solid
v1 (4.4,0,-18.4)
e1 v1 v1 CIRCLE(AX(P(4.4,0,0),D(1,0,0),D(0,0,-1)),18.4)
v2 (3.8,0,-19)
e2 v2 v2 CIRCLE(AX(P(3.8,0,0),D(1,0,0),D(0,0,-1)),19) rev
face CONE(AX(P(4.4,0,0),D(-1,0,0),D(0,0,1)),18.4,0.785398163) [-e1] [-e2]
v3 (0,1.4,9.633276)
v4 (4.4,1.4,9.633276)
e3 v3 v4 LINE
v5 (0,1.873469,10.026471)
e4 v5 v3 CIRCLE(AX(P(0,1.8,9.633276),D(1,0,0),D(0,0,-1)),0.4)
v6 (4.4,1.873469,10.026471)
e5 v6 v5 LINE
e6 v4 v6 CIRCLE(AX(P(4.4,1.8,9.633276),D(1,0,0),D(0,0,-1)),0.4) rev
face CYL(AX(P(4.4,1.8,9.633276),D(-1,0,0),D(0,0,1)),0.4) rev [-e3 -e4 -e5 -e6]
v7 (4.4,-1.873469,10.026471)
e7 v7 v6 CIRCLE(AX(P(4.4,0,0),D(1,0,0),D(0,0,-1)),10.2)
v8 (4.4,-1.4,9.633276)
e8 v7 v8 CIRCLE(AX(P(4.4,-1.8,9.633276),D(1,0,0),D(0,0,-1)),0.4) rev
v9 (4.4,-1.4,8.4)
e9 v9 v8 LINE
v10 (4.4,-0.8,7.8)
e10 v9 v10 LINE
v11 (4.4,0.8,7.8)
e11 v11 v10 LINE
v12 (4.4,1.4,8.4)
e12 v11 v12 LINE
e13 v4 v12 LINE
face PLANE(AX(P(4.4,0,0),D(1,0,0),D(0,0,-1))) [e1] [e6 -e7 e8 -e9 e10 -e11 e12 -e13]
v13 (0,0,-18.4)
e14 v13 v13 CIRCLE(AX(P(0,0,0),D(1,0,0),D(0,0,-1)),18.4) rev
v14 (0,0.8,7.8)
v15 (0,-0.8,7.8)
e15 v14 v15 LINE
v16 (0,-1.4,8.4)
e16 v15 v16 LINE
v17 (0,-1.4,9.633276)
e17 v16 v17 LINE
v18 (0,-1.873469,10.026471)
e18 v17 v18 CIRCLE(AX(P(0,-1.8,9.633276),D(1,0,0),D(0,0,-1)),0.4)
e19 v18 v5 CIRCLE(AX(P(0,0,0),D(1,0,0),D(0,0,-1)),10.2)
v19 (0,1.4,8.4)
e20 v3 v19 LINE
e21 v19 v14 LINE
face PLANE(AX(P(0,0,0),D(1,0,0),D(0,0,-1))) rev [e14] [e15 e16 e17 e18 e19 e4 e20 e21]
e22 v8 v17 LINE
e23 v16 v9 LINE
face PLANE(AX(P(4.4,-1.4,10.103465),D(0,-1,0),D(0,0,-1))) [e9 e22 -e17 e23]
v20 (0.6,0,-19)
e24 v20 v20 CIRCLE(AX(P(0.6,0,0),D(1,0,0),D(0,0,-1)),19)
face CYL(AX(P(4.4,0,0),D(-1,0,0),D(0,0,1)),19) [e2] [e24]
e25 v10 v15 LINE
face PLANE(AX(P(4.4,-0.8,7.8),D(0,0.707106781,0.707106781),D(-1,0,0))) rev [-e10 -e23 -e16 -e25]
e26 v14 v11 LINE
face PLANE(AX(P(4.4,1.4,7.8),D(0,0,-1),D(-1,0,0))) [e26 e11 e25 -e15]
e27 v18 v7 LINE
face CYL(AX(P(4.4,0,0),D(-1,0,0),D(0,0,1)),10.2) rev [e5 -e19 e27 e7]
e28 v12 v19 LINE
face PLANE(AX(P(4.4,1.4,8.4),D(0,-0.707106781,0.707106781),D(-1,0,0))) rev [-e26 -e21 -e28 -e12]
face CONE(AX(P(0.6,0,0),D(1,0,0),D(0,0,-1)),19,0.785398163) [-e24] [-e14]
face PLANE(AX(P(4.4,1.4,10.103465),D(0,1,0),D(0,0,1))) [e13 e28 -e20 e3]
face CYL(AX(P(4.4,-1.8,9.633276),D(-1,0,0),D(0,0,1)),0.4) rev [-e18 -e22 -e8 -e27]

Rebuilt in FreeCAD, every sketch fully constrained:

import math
import FreeCAD as App
import Part
import Sketcher

V = App.Vector
Q = App.Units.Quantity


def edges_at(feature, points):
    """Names of the edges that pass closest to the given points."""
    edges = feature.Shape.Edges
    near = lambda p: min(range(len(edges)), key=lambda i: edges[i].distToShape(Part.Vertex(*p))[0])
    return sorted({f"Edge{near(p) + 1}" for p in points})

doc = App.newDocument("Part")
body = doc.addObject("PartDesign::Body", "Body")

# Sketch on YZ plane
sketch1 = body.newObject("Sketcher::SketchObject", "Sketch")
sketch1.AttachmentSupport = (doc.getObject("YZ_Plane"), [""])
sketch1.MapMode = "FlatFace"
sketch1.addGeometry(Part.Circle(V(0, 0, 0), V(0, 0, 1), 19), False)
sketch1.addGeometry(Part.LineSegment(V(1.4, 7.8, 0), V(1.4, 10.1, 0)), False)
sketch1.addGeometry(Part.ArcOfCircle(Part.Circle(V(0, 0, 0), V(0, 0, 1), 10.2), math.radians(98), math.radians(442)), False)
sketch1.addGeometry(Part.LineSegment(V(-1.4, 10.1, 0), V(-1.4, 7.8, 0)), False)
sketch1.addGeometry(Part.LineSegment(V(-1.4, 7.8, 0), V(1.4, 7.8, 0)), False)
sketch1.addConstraint(Sketcher.Constraint("Coincident", 1, 2, 2, 2))
sketch1.addConstraint(Sketcher.Constraint("Coincident", 2, 1, 3, 1))
sketch1.addConstraint(Sketcher.Constraint("Coincident", 3, 2, 4, 1))
sketch1.addConstraint(Sketcher.Constraint("Coincident", 4, 2, 1, 1))
sketch1.addConstraint(Sketcher.Constraint("Vertical", 1))
sketch1.addConstraint(Sketcher.Constraint("Vertical", 3))
sketch1.addConstraint(Sketcher.Constraint("Horizontal", 4))
sketch1.addConstraint(Sketcher.Constraint("Coincident", 0, 3, -1, 1))
sketch1.addConstraint(Sketcher.Constraint("Coincident", 2, 3, -1, 1))
sketch1.addConstraint(Sketcher.Constraint("Horizontal", 1, 2, 2, 1))
sketch1.addConstraint(Sketcher.Constraint("Diameter", 0, Q("38 mm")))
sketch1.addConstraint(Sketcher.Constraint("Radius", 2, Q("10.2 mm")))
sketch1.addConstraint(Sketcher.Constraint("DistanceX", 4, 1, 4, 2, Q("2.8 mm")))
sketch1.addConstraint(Sketcher.Constraint("DistanceY", -1, 1, 3, 2, Q("7.8 mm")))
pad1 = body.newObject("PartDesign::Pad", "Pad")
pad1.Profile = sketch1
pad1.Length = 4.4
doc.recompute()

chamfer = body.newObject("PartDesign::Chamfer", "Chamfer")
chamfer.Base = (pad1, edges_at(pad1, [(0, 0, 19), (4.4, 0, 19)]))
chamfer.Size = 0.6
doc.recompute()

chamfer2 = body.newObject("PartDesign::Chamfer", "Chamfer001")
chamfer2.Base = (chamfer, edges_at(chamfer, [(2.2, 1.4, 7.8), (2.2, -1.4, 7.8)]))
chamfer2.Size = 0.6
doc.recompute()

fillet = body.newObject("PartDesign::Fillet", "Fillet")
fillet.Base = (chamfer2, edges_at(chamfer2, [(2.2, -1.4, 10.103), (2.2, 1.4, 10.103)]))
fillet.Radius = 0.4

doc.recompute()
